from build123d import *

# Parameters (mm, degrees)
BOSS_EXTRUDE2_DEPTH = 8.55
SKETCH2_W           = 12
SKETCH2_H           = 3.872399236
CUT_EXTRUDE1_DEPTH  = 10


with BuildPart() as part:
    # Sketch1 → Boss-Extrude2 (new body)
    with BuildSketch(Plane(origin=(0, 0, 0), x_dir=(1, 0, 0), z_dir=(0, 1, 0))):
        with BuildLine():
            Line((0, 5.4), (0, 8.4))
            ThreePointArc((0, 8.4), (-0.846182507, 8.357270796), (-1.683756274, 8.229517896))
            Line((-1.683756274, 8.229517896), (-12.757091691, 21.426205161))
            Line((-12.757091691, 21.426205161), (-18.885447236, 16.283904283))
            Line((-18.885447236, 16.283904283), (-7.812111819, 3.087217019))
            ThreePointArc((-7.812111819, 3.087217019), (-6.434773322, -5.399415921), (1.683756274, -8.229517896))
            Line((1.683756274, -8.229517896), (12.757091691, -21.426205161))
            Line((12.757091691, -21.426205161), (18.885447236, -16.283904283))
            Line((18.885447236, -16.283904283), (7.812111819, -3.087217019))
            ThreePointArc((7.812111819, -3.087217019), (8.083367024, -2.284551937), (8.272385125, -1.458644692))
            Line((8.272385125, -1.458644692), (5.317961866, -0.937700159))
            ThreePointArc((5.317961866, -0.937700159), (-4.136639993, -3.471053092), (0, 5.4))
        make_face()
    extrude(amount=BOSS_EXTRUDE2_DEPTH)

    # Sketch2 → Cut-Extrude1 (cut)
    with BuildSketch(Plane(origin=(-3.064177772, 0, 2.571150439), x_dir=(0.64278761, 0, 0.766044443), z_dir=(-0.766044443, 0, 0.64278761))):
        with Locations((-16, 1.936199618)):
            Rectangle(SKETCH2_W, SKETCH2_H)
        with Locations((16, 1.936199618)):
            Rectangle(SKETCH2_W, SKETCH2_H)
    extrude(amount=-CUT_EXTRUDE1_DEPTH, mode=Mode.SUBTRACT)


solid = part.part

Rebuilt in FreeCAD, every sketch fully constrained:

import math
import FreeCAD as App
import Part
import Sketcher
Q = App.Units.Quantity

doc = App.newDocument("Part")
body = doc.addObject("PartDesign::Body", "Body")

sketch1 = body.newObject("Sketcher::SketchObject", "Sketch")
sketch1.AttachmentSupport = (doc.getObject("XZ_Plane"), [""])
sketch1.MapMode = "FlatFace"
sketch1.addGeometry([
    Part.LineSegment(App.Vector(0, -5.4, 0), App.Vector(0, -8.4, 0)),
    Part.ArcOfCircle(Part.Circle(App.Vector(0, 0, 0), App.Vector(0, 0, 1), 8.4), math.radians(-101.56), math.radians(-90)),
    Part.LineSegment(App.Vector(-1.7, -8.2, 0), App.Vector(-12.8, -21.4, 0)),
    Part.LineSegment(App.Vector(-12.8, -21.4, 0), App.Vector(-18.9, -16.3, 0)),
    Part.LineSegment(App.Vector(-18.9, -16.3, 0), App.Vector(-7.8, -3.1, 0)),
    Part.ArcOfCircle(Part.Circle(App.Vector(0, 0, 0), App.Vector(0, 0, 1), 8.4), math.radians(78), math.radians(202)),
    Part.LineSegment(App.Vector(1.7, 8.2, 0), App.Vector(12.8, 21.4, 0)),
    Part.LineSegment(App.Vector(12.8, 21.4, 0), App.Vector(18.9, 16.3, 0)),
    Part.LineSegment(App.Vector(18.9, 16.3, 0), App.Vector(7.8, 3.1, 0)),
    Part.ArcOfCircle(Part.Circle(App.Vector(0, 0, 0), App.Vector(0, 0, 1), 8.4), math.radians(10), math.radians(21.56)),
    Part.LineSegment(App.Vector(8.3, 1.5, 0), App.Vector(5.3, 0.9, 0)),
    Part.ArcOfCircle(Part.Circle(App.Vector(0, 0, 0), App.Vector(0, 0, 1), 5.4), math.radians(10), math.radians(270)),
], False)
sketch1.addConstraint([
    Sketcher.Constraint("Coincident", 0, 2, 1, 2),
    Sketcher.Constraint("Coincident", 1, 1, 2, 1),
    Sketcher.Constraint("Coincident", 2, 2, 3, 1),
    Sketcher.Constraint("Coincident", 3, 2, 4, 1),
    Sketcher.Constraint("Coincident", 4, 2, 5, 2),
    Sketcher.Constraint("Coincident", 5, 1, 6, 1),
    Sketcher.Constraint("Coincident", 6, 2, 7, 1),
    Sketcher.Constraint("Coincident", 7, 2, 8, 1),
    Sketcher.Constraint("Coincident", 8, 2, 9, 2),
    Sketcher.Constraint("Coincident", 9, 1, 10, 1),
    Sketcher.Constraint("Coincident", 10, 2, 11, 1),
    Sketcher.Constraint("Coincident", 11, 2, 0, 1),
    Sketcher.Constraint("Vertical", 0),
    Sketcher.Constraint("Coincident", 1, 3, -1, 1),
    Sketcher.Constraint("Coincident", 5, 3, -1, 1),
    Sketcher.Constraint("Coincident", 9, 3, -1, 1),
    Sketcher.Constraint("Coincident", 11, 3, -1, 1),
    Sketcher.Constraint("Equal", 1, 5),
    Sketcher.Constraint("Equal", 5, 9),
    Sketcher.Constraint("Symmetric", 2, 2, 6, 2, -1, 1),
    Sketcher.Constraint("Symmetric", 3, 2, 7, 2, -1, 1),
    Sketcher.Constraint("PointOnObject", 0, 2, -2),
    Sketcher.Constraint("Perpendicular", 2, 3),
    Sketcher.Constraint("Perpendicular", 3, 4),
    Sketcher.Constraint("Parallel", 4, 6),
    Sketcher.Constraint("Perpendicular", 7, 8),
    Sketcher.Constraint("Equal", 2, 4),
    Sketcher.Constraint("Radius", 1, Q("8.4 mm")),
    Sketcher.Constraint("Radius", 11, Q("5.4 mm")),
    Sketcher.Constraint("Angle", 2, Q("-130 deg")),
    Sketcher.Constraint("Angle", 10, Q("-170 deg")),
    Sketcher.Constraint("Distance", 3, Q("8 mm")),
    Sketcher.Constraint("DistanceY", -1, 1, 10, 2, Q("0.9377 mm")),
    Sketcher.Constraint("Distance", 2, Q("17.227052 mm")),
])
pad1 = body.newObject("PartDesign::Pad", "Pad")
pad1.Profile = sketch1
pad1.Length = 8.55
pad1.Reversed = True

sketch2 = body.newObject("Sketcher::SketchObject", "Sketch001")
sketch2.Placement = App.Placement(App.Vector(-3.064178, 0, 2.57115), App.Rotation(App.Vector(0.64278761, 0, 0.766044443), App.Vector(0, 1, 0), App.Vector(-0.766044443, 0, 0.64278761), "ZXY"))
sketch2.addGeometry([
    Part.LineSegment(App.Vector(-22, 3.9, 0), App.Vector(-22, 0, 0)),
    Part.LineSegment(App.Vector(-22, 0, 0), App.Vector(-10, 0, 0)),
    Part.LineSegment(App.Vector(-10, 0, 0), App.Vector(-10, 3.9, 0)),
    Part.LineSegment(App.Vector(-10, 3.9, 0), App.Vector(-22, 3.9, 0)),
    Part.LineSegment(App.Vector(10, 3.9, 0), App.Vector(10, 0, 0)),
    Part.LineSegment(App.Vector(10, 0, 0), App.Vector(22, 0, 0)),
    Part.LineSegment(App.Vector(22, 0, 0), App.Vector(22, 3.9, 0)),
    Part.LineSegment(App.Vector(22, 3.9, 0), App.Vector(10, 3.9, 0)),
], False)
sketch2.addConstraint([
    Sketcher.Constraint("Coincident", 0, 2, 1, 1),
    Sketcher.Constraint("Coincident", 1, 2, 2, 1),
    Sketcher.Constraint("Coincident", 2, 2, 3, 1),
    Sketcher.Constraint("Coincident", 3, 2, 0, 1),
    Sketcher.Constraint("Coincident", 4, 2, 5, 1),
    Sketcher.Constraint("Coincident", 5, 2, 6, 1),
    Sketcher.Constraint("Coincident", 6, 2, 7, 1),
    Sketcher.Constraint("Coincident", 7, 2, 4, 1),
    Sketcher.Constraint("Vertical", 0),
    Sketcher.Constraint("Horizontal", 1),
    Sketcher.Constraint("Vertical", 2),
    Sketcher.Constraint("Horizontal", 3),
    Sketcher.Constraint("Vertical", 4),
    Sketcher.Constraint("Horizontal", 5),
    Sketcher.Constraint("Vertical", 6),
    Sketcher.Constraint("Horizontal", 7),
    Sketcher.Constraint("Symmetric", 1, 2, 4, 2, -1, 1),
    Sketcher.Constraint("Symmetric", 0, 2, 5, 2, -2),
    Sketcher.Constraint("Horizontal", 3, 2, 6, 2),
    Sketcher.Constraint("DistanceX", 1, 1, 1, 2, Q("12 mm")),
    Sketcher.Constraint("DistanceX", 0, 2, -1, 1, Q("22 mm")),
    Sketcher.Constraint("DistanceY", 0, 2, 0, 1, Q("3.872399 mm")),
])
pocket1 = body.newObject("PartDesign::Pocket", "Pocket")
pocket1.Profile = sketch2
pocket1.Length = 10

doc.recompute()
